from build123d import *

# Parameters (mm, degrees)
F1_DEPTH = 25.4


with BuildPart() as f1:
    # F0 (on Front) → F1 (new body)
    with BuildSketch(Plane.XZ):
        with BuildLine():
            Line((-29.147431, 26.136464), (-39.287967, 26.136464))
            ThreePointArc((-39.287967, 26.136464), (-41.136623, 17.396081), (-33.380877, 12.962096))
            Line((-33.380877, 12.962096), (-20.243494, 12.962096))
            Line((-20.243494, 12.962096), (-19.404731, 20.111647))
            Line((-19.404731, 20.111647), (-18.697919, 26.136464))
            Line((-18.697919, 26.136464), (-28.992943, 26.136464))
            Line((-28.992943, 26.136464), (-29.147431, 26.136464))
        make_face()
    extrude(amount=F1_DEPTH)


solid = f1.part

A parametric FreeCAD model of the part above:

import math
import FreeCAD as App
import Part
import Sketcher

V = App.Vector
Q = App.Units.Quantity

doc = App.newDocument("Part")
body = doc.addObject("PartDesign::Body", "Body")

# Sketch on XZ plane
sketch1 = body.newObject("Sketcher::SketchObject", "Sketch")
sketch1.AttachmentSupport = (doc.getObject("XZ_Plane"), [""])
sketch1.MapMode = "FlatFace"
sketch1.addGeometry([
    Part.ArcOfCircle(Part.Circle(V(-34, 20, 0), V(0, 0, 1), 8), math.radians(132), math.radians(276)),  # 0
    Part.LineSegment(V(-33, 13, 0), V(-20, 13, 0)),  # 1
    Part.LineSegment(V(-20, 13, 0), V(-19, 20, 0)),  # 2
    Part.LineSegment(V(-19, 20, 0), V(-19, 26, 0)),  # 3
    Part.LineSegment(V(-19, 26, 0), V(-39, 26, 0)),  # 4
], False)
sketch1.addConstraint([
    Sketcher.Constraint("Coincident", 0, 2, 1, 1),
    Sketcher.Constraint("Coincident", 1, 2, 2, 1),
    Sketcher.Constraint("Coincident", 2, 2, 3, 1),
    Sketcher.Constraint("Coincident", 3, 2, 4, 1),
    Sketcher.Constraint("Coincident", 4, 2, 0, 1),
    Sketcher.Constraint("Horizontal", 1),
    Sketcher.Constraint("Horizontal", 4),
    Sketcher.Constraint("Parallel", 2, 3),
    Sketcher.Constraint("Radius", 0, Q("7.582593 mm")),
    Sketcher.Constraint("DistanceX", 4, 2, 4, 1, Q("20.590048 mm")),
    Sketcher.Constraint("DistanceX", 0, 3, -1, 1, Q("34.217699 mm")),
    Sketcher.Constraint("DistanceX", 1, 1, 1, 2, Q("13.137383 mm")),
    Sketcher.Constraint("DistanceY", -1, 1, 0, 3, Q("20.498371 mm")),
    Sketcher.Constraint("DistanceX", 2, 2, -1, 1, Q("19.404731 mm")),
    Sketcher.Constraint("DistanceX", 3, 2, -1, 1, Q("18.697919 mm")),
    Sketcher.Constraint("DistanceY", 1, 2, 2, 2, Q("7.149551 mm")),
])
pad1 = body.newObject("PartDesign::Pad", "Pad")
pad1.Profile = sketch1
pad1.Length = Q("1 in")

doc.recompute()
